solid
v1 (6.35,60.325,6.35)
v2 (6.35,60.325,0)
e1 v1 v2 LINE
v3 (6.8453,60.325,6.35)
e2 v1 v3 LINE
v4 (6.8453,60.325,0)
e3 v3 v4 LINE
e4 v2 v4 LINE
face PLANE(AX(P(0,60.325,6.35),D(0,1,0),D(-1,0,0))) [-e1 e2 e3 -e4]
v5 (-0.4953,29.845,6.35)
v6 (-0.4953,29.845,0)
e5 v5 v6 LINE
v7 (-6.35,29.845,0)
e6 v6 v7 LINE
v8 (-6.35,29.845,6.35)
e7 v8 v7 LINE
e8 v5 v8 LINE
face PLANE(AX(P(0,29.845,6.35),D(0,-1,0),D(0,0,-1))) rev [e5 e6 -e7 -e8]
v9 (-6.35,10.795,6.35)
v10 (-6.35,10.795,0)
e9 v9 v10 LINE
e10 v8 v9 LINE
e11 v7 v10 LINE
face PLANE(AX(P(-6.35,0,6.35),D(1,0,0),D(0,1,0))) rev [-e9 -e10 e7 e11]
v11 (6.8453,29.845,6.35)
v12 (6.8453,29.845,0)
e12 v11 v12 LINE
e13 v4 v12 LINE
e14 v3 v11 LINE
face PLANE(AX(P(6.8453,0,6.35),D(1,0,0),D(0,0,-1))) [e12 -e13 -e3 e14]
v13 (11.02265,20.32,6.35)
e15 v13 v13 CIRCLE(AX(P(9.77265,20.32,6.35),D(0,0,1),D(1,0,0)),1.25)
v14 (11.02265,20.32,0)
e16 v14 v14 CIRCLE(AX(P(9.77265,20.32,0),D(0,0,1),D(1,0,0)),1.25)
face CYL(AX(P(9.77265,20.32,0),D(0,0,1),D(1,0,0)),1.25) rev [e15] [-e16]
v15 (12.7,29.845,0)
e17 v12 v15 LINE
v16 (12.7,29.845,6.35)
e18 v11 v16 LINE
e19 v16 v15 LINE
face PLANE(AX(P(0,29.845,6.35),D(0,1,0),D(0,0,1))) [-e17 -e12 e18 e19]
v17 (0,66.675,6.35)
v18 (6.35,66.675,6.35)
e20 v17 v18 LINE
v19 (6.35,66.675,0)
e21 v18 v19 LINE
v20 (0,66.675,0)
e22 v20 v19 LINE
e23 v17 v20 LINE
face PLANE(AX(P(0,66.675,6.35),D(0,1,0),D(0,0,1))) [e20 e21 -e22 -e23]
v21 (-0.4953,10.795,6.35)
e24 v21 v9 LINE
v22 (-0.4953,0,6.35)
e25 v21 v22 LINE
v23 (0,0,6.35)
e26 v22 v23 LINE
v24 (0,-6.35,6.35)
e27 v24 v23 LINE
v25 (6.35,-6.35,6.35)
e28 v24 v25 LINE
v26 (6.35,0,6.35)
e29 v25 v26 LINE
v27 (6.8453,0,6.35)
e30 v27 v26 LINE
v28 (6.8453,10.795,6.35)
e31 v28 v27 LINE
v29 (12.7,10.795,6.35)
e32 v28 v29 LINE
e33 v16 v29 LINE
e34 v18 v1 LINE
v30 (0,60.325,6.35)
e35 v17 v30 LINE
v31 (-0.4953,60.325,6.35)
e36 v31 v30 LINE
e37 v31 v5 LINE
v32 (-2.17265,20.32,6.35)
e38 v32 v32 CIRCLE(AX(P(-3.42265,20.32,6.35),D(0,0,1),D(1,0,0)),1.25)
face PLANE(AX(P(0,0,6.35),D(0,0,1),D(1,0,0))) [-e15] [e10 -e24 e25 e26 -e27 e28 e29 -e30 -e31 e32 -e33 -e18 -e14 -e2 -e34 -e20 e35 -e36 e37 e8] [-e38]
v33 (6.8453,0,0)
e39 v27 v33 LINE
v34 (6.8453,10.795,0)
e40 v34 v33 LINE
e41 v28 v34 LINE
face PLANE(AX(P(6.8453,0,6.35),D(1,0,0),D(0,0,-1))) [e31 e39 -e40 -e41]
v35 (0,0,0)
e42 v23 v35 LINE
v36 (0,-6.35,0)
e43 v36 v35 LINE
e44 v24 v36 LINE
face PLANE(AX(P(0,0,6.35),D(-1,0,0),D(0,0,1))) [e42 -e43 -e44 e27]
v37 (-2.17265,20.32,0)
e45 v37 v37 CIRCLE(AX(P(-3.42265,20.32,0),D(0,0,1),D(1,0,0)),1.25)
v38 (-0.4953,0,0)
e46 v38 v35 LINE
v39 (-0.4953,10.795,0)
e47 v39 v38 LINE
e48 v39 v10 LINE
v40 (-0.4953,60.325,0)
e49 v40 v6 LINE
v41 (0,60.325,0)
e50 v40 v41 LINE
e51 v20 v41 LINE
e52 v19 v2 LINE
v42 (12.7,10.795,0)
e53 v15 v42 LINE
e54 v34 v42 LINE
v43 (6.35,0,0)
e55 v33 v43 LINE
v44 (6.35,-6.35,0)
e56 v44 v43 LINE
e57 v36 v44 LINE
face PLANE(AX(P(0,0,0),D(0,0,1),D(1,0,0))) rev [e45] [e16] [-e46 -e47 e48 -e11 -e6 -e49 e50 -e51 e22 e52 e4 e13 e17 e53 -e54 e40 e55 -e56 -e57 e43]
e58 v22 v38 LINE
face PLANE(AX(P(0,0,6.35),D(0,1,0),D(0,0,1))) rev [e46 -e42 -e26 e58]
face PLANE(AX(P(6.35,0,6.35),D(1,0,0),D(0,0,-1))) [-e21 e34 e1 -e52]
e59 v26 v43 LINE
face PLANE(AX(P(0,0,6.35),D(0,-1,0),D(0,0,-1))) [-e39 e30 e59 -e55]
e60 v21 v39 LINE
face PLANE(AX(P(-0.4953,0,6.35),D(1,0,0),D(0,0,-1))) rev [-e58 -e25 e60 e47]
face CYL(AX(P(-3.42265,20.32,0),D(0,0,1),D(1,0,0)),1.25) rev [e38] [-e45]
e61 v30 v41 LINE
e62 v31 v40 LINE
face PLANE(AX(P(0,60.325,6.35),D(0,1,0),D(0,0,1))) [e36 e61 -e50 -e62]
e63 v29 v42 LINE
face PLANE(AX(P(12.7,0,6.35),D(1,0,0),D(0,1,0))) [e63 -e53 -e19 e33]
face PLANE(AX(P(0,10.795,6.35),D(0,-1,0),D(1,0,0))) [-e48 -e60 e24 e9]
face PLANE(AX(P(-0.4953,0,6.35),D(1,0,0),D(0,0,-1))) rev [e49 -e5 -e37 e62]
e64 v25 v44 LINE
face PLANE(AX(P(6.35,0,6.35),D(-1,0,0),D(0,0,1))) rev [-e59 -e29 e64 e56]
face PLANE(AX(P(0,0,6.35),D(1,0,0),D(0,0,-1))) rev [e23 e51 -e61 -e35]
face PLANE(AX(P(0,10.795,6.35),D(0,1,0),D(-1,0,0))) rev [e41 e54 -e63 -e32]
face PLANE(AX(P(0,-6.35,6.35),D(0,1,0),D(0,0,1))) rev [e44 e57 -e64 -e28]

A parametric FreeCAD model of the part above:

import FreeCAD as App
import Part
import Sketcher
Q = App.Units.Quantity


def add_polygon(sketch, points):
    """Adds a closed chain of lines whose ends are joined by coincident constraints."""
    first, n = sketch.GeometryCount, len(points)
    for a, b in zip(points, points[1:] + points[:1]):
        sketch.addGeometry(Part.LineSegment(App.Vector(*a, 0), App.Vector(*b, 0)), False)
    for i in range(n):
        sketch.addConstraint(Sketcher.Constraint("Coincident", first + i, 2, first + (i + 1) % n, 1))

doc = App.newDocument("Part")
params = doc.addObject("Spreadsheet::Sheet", "Params")
for row, (alias, value) in enumerate([
    ("sketch1_height", "1.2 in"),
    ("sketch1_width", "0.25 in"),
    ("sketch1_height2", "0.75 in"),
    ("sketch1_height3", "0.425 in"),
    ("pad1_length", "0.25 in"),
], start=1):
    params.set(f"A{row}", alias)
    params.set(f"B{row}", "=" + value)
    params.setAlias(f"B{row}", alias)

body = doc.addObject("PartDesign::Body", "Body")

sketch1 = doc.addObject("Sketcher::SketchObject", "Sketch")
body.addObject(sketch1)
sketch1.AttachmentSupport = (doc.XY_Plane, [""])
sketch1.MapMode = "FlatFace"
add_polygon(sketch1, [(0, -6.35), (6.35, -6.35), (6.35, 0), (6.8453, 0), (6.8453, 10.795), (12.7, 10.795), (12.7, 29.845), (6.8453, 29.845), (6.8453, 60.325), (6.35, 60.325), (6.35, 66.675), (0, 66.675), (0, 60.325), (-0.4953, 60.325), (-0.4953, 29.845), (-6.35, 29.845), (-6.35, 10.795), (-0.4953, 10.795), (-0.4953, 0), (0, 0)])
sketch1.addConstraint([
    Sketcher.Constraint("Horizontal", 0),
    Sketcher.Constraint("Vertical", 1),
    Sketcher.Constraint("Horizontal", 2),
    Sketcher.Constraint("Vertical", 3),
    Sketcher.Constraint("Horizontal", 4),
    Sketcher.Constraint("Vertical", 5),
    Sketcher.Constraint("Horizontal", 6),
    Sketcher.Constraint("Vertical", 7),
    Sketcher.Constraint("Horizontal", 8),
    Sketcher.Constraint("Vertical", 9),
    Sketcher.Constraint("Horizontal", 10),
    Sketcher.Constraint("Vertical", 11),
    Sketcher.Constraint("Horizontal", 12),
    Sketcher.Constraint("Vertical", 13),
    Sketcher.Constraint("Horizontal", 14),
    Sketcher.Constraint("Vertical", 15),
    Sketcher.Constraint("Horizontal", 16),
    Sketcher.Constraint("Vertical", 17),
    Sketcher.Constraint("Horizontal", 18),
    Sketcher.Constraint("Vertical", 19),
    Sketcher.Constraint("Coincident", 18, 2, -1, 1),
    Sketcher.Constraint("PointOnObject", 1, 2, -1),
    Sketcher.Constraint("PointOnObject", 10, 2, -2),
    Sketcher.Constraint("Horizontal", 8, 2, 11, 2),
    Sketcher.Constraint("Horizontal", 6, 2, 13, 2),
    Sketcher.Constraint("Horizontal", 4, 2, 15, 2),
    Sketcher.Constraint("Vertical", 3, 2, 6, 2),
    Sketcher.Constraint("Vertical", 1, 2, 8, 2),
    Sketcher.Constraint("Vertical", 13, 2, 16, 2),
    Sketcher.Constraint("Equal", 8, 12),
    Sketcher.Constraint("Equal", 6, 14),
    Sketcher.Constraint("Equal", 10, 1),
    Sketcher.Constraint("Equal", 1, 9),
    Sketcher.Constraint("DistanceY", 7, 1, 7, 2, Q("1.2 in")),
    Sketcher.Constraint("DistanceX", 0, 1, 0, 2, Q("0.25 in")),
    Sketcher.Constraint("DistanceY", 5, 1, 5, 2, Q("0.75 in")),
    Sketcher.Constraint("DistanceX", -1, 1, 4, 2, Q("0.5 in")),
    Sketcher.Constraint("DistanceY", 3, 1, 3, 2, Q("0.425 in")),
    Sketcher.Constraint("DistanceX", 2, 1, 2, 2, Q("0.0195 in")),
])
sketch1.setExpression("Constraints[53]", "Params.sketch1_height")
sketch1.setExpression("Constraints[54]", "Params.sketch1_width")
sketch1.setExpression("Constraints[55]", "Params.sketch1_height2")
sketch1.setExpression("Constraints[57]", "Params.sketch1_height3")
pad1 = doc.addObject("PartDesign::Pad", "Pad")
body.addObject(pad1)
pad1.Profile = sketch1
pad1.setExpression("Length", "Params.pad1_length")

sketch2 = doc.addObject("Sketcher::SketchObject", "Sketch001")
body.addObject(sketch2)
sketch2.AttachmentSupport = (doc.XY_Plane, [""])
sketch2.MapMode = "FlatFace"
sketch2.AttachmentOffset = App.Placement(App.Vector(0, 0, 0.25 * 25.4), App.Rotation())
sketch2.addGeometry([
    Part.Circle(App.Vector(-3.42265, 20.32, 0), App.Vector(0, 0, 1), 1.25),
    Part.Circle(App.Vector(9.77265, 20.32, 0), App.Vector(0, 0, 1), 1.25),
], False)
sketch2.addConstraint([
    Sketcher.Constraint("Equal", 0, 1),
    Sketcher.Constraint("Horizontal", 0, 3, 1, 3),
    Sketcher.Constraint("DistanceY", -1, 1, 0, 3, Q("0.8 in")),
    Sketcher.Constraint("Diameter", 0, Q("2.5 mm")),
    Sketcher.Constraint("DistanceX", 0, 3, 1, 3, Q("0.5195 in")),
    Sketcher.Constraint("DistanceX", 0, 3, -1, 1, Q("3.42265 mm")),
])
pocket1 = doc.addObject("PartDesign::Pocket", "Pocket")
body.addObject(pocket1)
pocket1.Profile = sketch2
pocket1.Type = "ThroughAll"

doc.recompute()
